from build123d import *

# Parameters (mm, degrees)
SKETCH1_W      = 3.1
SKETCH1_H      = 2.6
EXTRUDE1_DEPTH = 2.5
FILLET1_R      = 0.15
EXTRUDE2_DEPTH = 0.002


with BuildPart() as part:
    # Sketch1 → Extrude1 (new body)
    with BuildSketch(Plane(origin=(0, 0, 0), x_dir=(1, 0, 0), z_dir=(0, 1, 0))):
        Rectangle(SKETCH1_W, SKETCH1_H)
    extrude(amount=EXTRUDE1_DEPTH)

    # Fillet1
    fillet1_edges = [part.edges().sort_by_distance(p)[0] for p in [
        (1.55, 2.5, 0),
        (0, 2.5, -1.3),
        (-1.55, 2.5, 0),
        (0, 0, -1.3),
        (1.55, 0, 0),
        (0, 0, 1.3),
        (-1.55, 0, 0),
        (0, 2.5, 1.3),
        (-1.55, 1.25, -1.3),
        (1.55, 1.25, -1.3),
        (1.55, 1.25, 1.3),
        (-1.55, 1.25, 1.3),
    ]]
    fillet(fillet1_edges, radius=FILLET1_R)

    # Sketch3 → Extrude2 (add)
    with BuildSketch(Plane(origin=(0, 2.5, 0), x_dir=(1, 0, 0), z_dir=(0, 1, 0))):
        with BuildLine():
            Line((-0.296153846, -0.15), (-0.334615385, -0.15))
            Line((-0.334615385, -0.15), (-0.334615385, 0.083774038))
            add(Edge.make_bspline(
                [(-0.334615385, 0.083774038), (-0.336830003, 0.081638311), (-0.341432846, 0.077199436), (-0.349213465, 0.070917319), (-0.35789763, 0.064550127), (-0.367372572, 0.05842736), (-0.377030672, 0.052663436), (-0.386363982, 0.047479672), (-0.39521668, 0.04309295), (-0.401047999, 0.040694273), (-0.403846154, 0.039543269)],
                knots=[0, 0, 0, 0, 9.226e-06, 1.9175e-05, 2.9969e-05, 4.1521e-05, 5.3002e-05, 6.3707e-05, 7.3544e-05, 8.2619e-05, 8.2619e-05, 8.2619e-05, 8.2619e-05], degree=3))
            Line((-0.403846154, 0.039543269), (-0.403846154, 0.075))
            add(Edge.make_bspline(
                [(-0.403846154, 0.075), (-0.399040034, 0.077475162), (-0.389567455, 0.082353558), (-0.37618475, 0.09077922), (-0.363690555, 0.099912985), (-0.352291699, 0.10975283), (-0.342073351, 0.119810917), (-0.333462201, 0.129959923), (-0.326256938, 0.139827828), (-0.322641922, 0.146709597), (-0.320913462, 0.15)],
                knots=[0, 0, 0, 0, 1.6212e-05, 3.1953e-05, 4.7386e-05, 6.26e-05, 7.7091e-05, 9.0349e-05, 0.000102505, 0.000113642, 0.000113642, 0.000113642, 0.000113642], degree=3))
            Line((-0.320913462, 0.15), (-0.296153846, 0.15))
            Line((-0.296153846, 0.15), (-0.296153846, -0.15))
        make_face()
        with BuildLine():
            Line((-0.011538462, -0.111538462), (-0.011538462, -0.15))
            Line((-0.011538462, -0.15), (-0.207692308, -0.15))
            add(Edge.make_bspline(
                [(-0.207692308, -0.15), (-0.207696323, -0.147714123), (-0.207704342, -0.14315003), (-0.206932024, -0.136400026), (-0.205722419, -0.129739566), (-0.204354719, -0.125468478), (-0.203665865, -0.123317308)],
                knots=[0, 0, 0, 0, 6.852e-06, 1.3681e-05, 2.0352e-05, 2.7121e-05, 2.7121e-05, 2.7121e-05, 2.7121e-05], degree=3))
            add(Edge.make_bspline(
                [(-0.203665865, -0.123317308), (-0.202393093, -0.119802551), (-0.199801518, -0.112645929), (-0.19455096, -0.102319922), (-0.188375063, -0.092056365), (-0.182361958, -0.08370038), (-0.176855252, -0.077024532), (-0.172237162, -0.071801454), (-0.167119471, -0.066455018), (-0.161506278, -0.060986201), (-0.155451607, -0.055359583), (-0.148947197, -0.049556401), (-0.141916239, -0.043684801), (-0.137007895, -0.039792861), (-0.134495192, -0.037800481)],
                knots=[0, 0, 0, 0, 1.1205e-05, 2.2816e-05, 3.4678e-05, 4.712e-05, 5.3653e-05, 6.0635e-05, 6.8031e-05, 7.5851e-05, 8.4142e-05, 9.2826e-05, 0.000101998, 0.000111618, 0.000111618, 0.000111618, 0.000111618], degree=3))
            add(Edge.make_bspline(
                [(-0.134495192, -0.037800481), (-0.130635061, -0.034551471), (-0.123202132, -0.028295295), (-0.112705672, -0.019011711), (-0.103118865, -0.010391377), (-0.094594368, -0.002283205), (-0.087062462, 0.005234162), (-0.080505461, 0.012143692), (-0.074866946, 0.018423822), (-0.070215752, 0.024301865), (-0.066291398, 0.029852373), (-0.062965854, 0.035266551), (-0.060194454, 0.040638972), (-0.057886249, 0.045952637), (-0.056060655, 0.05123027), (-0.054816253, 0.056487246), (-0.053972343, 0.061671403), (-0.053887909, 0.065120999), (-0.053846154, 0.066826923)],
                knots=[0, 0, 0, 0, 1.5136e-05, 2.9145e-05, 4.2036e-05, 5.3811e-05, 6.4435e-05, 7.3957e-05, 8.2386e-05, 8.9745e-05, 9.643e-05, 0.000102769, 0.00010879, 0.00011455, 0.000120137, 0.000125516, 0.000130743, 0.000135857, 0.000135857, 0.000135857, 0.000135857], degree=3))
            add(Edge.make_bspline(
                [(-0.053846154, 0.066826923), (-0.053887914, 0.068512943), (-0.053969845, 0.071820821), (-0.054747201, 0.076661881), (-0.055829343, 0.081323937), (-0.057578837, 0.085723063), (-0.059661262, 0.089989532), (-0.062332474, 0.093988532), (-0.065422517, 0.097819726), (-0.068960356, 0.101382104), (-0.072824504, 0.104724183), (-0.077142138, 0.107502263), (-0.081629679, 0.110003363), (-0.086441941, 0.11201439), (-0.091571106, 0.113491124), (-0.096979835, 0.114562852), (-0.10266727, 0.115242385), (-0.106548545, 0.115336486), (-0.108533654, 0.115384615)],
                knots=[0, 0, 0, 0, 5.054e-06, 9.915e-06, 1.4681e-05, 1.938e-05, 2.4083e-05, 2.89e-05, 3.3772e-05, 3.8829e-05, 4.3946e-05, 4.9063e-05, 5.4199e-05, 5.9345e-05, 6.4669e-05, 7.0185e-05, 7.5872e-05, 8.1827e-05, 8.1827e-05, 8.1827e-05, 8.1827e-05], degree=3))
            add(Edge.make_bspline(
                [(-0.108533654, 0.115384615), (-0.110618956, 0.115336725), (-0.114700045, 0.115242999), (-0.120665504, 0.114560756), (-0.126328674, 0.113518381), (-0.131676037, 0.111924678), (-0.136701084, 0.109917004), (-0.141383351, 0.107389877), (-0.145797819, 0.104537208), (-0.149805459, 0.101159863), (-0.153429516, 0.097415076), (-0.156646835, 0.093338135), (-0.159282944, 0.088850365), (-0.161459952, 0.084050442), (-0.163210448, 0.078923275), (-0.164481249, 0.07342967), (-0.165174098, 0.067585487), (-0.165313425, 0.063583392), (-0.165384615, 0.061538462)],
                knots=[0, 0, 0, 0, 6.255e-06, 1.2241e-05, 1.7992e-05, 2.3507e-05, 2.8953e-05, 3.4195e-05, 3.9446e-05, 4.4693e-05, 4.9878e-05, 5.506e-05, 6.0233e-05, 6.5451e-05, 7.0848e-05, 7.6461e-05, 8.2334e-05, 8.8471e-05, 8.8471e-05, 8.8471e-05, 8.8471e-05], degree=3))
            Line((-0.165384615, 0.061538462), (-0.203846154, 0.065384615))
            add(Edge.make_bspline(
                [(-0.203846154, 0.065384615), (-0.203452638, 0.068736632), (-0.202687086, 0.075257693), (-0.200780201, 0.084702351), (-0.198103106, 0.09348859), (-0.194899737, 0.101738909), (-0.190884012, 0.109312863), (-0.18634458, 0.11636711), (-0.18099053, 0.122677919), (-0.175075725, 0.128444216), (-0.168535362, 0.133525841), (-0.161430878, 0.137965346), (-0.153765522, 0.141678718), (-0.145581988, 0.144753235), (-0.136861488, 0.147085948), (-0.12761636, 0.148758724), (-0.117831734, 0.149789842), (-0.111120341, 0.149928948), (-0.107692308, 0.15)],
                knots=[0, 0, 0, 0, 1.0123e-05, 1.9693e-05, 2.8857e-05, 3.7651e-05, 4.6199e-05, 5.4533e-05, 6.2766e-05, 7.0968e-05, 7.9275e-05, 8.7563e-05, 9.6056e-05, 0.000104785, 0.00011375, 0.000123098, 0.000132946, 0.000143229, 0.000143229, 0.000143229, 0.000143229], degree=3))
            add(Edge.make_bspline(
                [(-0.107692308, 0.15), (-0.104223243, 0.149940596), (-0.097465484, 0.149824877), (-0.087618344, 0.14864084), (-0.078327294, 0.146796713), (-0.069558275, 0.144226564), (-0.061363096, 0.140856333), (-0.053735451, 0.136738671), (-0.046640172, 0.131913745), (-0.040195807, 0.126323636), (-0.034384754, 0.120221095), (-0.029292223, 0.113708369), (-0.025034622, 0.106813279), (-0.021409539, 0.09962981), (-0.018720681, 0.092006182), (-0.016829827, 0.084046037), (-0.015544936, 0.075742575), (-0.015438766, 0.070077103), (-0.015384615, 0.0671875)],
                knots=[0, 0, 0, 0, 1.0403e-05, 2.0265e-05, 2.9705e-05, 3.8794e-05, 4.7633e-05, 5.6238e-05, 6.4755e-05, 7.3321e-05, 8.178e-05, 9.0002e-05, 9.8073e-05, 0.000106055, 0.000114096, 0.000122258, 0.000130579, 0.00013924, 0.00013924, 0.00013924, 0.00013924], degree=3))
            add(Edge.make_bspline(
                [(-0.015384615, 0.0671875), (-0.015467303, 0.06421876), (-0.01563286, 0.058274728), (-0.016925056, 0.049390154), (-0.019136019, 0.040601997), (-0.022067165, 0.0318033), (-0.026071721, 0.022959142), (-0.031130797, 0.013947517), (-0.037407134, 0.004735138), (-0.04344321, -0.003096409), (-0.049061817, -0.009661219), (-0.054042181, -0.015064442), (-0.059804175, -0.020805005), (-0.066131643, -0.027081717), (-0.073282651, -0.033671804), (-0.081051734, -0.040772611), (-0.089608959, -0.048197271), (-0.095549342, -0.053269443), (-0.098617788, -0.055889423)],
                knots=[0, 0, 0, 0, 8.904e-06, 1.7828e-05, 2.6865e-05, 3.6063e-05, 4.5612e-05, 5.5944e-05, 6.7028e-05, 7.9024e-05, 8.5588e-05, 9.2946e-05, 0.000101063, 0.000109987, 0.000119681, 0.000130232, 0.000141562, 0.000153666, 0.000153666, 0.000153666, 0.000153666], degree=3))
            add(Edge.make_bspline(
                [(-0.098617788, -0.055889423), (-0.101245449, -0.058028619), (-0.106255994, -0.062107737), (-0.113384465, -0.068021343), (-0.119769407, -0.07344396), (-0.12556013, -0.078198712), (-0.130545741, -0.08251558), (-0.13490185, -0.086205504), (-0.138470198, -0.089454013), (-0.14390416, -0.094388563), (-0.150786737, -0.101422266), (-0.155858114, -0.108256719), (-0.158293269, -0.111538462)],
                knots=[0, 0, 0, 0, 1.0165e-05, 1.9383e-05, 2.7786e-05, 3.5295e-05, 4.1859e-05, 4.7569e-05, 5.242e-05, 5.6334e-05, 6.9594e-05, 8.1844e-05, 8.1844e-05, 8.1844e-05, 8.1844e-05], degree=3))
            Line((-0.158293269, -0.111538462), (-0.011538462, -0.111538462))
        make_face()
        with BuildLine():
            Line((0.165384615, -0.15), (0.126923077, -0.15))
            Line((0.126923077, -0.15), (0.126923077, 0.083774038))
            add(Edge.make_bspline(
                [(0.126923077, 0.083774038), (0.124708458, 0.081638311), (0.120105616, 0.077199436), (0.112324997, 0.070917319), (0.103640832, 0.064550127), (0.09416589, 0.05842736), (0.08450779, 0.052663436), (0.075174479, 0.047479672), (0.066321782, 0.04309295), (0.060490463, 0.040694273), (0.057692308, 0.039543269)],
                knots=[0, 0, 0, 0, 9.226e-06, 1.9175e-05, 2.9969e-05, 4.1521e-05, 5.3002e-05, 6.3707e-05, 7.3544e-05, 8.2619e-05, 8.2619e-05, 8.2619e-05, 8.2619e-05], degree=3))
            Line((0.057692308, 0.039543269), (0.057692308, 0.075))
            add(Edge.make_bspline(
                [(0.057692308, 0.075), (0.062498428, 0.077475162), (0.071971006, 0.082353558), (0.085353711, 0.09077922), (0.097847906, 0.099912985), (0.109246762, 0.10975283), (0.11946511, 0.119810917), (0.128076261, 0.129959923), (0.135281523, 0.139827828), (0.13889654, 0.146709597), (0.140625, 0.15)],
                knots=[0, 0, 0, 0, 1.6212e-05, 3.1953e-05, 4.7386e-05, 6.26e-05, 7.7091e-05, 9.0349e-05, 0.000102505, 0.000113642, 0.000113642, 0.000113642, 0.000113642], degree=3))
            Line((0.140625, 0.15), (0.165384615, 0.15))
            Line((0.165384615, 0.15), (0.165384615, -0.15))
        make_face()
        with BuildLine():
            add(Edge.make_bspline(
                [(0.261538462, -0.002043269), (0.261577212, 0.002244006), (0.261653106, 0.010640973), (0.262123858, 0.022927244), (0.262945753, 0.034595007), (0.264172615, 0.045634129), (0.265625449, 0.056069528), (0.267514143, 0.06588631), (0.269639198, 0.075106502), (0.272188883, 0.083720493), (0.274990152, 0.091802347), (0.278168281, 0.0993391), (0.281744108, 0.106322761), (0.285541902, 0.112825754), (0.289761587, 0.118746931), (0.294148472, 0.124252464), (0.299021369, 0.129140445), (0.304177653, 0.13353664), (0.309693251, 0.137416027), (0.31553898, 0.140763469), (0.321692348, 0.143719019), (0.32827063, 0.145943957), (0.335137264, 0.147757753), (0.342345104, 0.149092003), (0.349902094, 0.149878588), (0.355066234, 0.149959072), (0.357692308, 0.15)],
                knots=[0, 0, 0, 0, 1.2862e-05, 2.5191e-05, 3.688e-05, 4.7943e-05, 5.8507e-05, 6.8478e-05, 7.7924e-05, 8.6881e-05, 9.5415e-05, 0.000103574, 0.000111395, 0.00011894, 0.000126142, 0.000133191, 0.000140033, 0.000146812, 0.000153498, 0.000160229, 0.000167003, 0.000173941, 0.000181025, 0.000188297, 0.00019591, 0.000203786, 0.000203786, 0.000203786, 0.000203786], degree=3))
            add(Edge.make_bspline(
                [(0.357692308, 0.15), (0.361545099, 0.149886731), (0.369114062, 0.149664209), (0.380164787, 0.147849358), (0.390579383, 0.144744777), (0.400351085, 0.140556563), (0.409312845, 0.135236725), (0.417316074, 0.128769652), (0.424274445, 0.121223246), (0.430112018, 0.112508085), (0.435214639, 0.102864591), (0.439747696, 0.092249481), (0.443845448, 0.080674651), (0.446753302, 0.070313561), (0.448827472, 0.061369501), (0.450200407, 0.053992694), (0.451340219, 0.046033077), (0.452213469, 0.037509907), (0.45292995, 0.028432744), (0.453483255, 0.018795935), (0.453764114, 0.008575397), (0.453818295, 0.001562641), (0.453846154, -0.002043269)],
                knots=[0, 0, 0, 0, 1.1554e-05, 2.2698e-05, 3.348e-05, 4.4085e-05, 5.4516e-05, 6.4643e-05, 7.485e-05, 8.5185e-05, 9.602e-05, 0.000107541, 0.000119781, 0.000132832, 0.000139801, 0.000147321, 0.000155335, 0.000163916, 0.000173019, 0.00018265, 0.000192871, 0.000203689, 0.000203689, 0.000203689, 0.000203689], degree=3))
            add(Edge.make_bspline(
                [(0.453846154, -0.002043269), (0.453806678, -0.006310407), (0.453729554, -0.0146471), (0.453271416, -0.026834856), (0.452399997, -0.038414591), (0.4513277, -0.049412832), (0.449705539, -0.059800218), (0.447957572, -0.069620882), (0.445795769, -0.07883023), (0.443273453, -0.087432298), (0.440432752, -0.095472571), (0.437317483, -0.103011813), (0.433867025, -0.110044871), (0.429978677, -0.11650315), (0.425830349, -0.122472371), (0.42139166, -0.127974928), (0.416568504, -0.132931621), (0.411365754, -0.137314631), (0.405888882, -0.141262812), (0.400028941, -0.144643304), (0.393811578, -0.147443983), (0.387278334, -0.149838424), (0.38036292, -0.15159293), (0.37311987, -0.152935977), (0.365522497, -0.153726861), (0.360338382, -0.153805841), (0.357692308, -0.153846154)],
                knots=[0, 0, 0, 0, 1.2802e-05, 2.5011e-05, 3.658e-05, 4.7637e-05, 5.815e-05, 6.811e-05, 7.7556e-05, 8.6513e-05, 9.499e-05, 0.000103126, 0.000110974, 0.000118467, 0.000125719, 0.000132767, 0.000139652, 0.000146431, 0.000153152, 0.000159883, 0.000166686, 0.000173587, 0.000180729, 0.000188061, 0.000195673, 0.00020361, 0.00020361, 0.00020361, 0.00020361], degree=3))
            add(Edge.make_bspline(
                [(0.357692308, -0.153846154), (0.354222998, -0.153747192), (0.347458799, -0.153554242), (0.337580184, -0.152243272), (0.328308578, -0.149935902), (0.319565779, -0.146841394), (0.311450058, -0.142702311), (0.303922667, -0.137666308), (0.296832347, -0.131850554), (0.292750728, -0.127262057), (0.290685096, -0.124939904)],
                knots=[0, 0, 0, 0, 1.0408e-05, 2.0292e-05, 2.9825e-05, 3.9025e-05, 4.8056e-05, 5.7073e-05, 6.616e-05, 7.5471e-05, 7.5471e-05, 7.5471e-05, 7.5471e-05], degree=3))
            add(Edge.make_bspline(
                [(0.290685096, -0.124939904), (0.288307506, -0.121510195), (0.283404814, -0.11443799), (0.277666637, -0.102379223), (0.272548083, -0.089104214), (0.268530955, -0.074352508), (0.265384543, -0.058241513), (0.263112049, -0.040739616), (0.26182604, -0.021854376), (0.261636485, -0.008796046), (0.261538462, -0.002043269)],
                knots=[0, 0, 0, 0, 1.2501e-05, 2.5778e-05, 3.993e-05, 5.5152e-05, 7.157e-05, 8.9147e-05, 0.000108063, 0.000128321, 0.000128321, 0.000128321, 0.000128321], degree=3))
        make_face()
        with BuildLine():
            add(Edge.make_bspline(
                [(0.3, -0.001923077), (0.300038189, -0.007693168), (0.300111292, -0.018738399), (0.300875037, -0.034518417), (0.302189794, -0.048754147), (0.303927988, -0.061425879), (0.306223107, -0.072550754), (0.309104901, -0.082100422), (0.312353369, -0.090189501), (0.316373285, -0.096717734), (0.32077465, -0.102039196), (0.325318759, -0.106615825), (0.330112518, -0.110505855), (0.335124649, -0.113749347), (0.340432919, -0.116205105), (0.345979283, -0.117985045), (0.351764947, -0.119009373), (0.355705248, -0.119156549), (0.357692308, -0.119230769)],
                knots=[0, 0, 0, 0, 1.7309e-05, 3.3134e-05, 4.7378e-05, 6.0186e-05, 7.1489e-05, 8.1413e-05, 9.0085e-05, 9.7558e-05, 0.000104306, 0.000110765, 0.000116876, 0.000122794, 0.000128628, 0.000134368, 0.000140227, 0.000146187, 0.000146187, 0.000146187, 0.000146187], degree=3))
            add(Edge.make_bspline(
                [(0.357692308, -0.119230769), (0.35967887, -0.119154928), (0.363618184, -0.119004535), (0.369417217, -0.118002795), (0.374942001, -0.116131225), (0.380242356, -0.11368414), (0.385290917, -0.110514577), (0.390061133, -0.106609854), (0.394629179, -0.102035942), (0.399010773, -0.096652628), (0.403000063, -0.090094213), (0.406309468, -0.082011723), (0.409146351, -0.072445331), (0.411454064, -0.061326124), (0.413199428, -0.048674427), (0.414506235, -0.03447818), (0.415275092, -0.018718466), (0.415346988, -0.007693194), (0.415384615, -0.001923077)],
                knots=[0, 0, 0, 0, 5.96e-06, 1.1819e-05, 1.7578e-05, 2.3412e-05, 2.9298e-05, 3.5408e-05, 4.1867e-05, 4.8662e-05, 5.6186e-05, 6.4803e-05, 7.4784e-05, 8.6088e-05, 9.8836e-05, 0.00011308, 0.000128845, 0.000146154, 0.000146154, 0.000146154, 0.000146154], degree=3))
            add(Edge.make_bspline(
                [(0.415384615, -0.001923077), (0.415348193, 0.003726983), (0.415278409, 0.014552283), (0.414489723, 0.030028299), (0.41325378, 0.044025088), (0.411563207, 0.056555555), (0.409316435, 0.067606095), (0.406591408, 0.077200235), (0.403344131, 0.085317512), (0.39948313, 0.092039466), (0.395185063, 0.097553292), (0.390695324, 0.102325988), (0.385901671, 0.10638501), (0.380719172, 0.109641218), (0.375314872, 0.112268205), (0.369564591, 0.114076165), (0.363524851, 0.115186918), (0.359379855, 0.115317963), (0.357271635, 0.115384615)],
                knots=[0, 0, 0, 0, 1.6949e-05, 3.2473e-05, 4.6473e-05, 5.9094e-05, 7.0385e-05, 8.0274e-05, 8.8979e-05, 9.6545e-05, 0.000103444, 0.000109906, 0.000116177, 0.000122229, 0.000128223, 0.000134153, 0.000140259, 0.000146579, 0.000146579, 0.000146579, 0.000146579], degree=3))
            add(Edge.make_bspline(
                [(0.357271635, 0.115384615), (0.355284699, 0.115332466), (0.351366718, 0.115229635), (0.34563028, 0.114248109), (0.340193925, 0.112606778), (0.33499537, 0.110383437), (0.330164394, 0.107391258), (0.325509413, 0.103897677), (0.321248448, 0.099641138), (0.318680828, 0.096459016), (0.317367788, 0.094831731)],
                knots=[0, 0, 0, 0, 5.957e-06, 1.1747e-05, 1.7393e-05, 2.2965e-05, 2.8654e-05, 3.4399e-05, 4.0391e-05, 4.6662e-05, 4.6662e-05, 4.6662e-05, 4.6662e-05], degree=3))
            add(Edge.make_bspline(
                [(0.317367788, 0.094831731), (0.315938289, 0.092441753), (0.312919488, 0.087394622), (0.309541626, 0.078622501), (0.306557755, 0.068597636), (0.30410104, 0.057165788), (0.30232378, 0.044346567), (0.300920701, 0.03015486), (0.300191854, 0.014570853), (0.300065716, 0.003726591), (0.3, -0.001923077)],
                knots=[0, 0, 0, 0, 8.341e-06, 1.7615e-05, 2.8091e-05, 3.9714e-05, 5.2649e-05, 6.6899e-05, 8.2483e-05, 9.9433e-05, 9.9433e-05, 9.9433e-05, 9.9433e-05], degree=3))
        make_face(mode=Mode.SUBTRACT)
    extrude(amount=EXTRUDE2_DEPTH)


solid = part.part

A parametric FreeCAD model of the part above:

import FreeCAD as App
import Part
import Sketcher

V = App.Vector
Q = App.Units.Quantity

doc = App.newDocument("Part")
body = doc.addObject("PartDesign::Body", "Body")

# Sketch on XZ plane
sketch1 = body.newObject("Sketcher::SketchObject", "Sketch")
sketch1.AttachmentSupport = (doc.getObject("XZ_Plane"), [""])
sketch1.MapMode = "FlatFace"
sketch1.addGeometry(Part.LineSegment(V(-1.6, -1.3, 0), V(-1.6, 1.3, 0)), False)
sketch1.addGeometry(Part.LineSegment(V(-1.6, 1.3, 0), V(1.6, 1.3, 0)), False)
sketch1.addGeometry(Part.LineSegment(V(1.6, 1.3, 0), V(1.6, -1.3, 0)), False)
sketch1.addGeometry(Part.LineSegment(V(1.6, -1.3, 0), V(-1.6, -1.3, 0)), False)
sketch1.addConstraint(Sketcher.Constraint("Coincident", 0, 2, 1, 1))
sketch1.addConstraint(Sketcher.Constraint("Coincident", 1, 2, 2, 1))
sketch1.addConstraint(Sketcher.Constraint("Coincident", 2, 2, 3, 1))
sketch1.addConstraint(Sketcher.Constraint("Coincident", 3, 2, 0, 1))
sketch1.addConstraint(Sketcher.Constraint("Vertical", 0))
sketch1.addConstraint(Sketcher.Constraint("Horizontal", 1))
sketch1.addConstraint(Sketcher.Constraint("Vertical", 2))
sketch1.addConstraint(Sketcher.Constraint("Horizontal", 3))
sketch1.addConstraint(Sketcher.Constraint("Symmetric", 0, 2, 2, 2, -1, 1))
sketch1.addConstraint(Sketcher.Constraint("DistanceX", 1, 1, 1, 2, Q("3.1 mm")))
sketch1.addConstraint(Sketcher.Constraint("DistanceY", 0, 1, 0, 2, Q("2.6 mm")))
pad1 = body.newObject("PartDesign::Pad", "Pad")
pad1.Profile = sketch1
pad1.Length = 2.5
pad1.Reversed = True
doc.recompute()

fillet = body.newObject("PartDesign::Fillet", "Fillet")
fillet.Base = (pad1, ["Edge1"])
fillet.UseAllEdges = True
fillet.Radius = 0.15

# Sketch on XZ plane
sketch2 = body.newObject("Sketcher::SketchObject", "Sketch001")
sketch2.AttachmentSupport = (doc.getObject("XZ_Plane"), [""])
sketch2.MapMode = "FlatFace"
sketch2.AttachmentOffset = App.Placement(V(0, 0, -2.5), App.Rotation())
sketch2.addGeometry(Part.LineSegment(V(-0.334615, 0.15, 0), V(-0.296154, 0.15, 0)), False)
sketch2.addGeometry(Part.LineSegment(V(-0.296154, 0.15, 0), V(-0.296154, -0.15, 0)), False)
sketch2.addGeometry(Part.LineSegment(V(-0.296154, -0.15, 0), V(-0.320913, -0.15, 0)), False)
sketch2.addGeometry(Part.BSplineCurve([V(-0.403846, -0.075, 0), V(-0.39904, -0.077475, 0), V(-0.389567, -0.082354, 0), V(-0.376185, -0.090779, 0), V(-0.363691, -0.099913, 0), V(-0.352292, -0.109753, 0), V(-0.342073, -0.119811, 0), V(-0.333462, -0.12996, 0), V(-0.326257, -0.139828, 0), V(-0.322642, -0.14671, 0), V(-0.320913, -0.15, 0)], [4, 1, 1, 1, 1, 1, 1, 1, 4], [0, 0.000016212, 0.000031953, 0.000047386, 0.0000626, 0.000077091, 0.000090349, 0.000102505, 0.000113642], False, 3, [1, 1, 1, 1, 1, 1, 1, 1, 1, 1, 1], False), False)
sketch2.addGeometry(Part.LineSegment(V(-0.403846, -0.075, 0), V(-0.403846, -0.039543, 0)), False)
sketch2.addGeometry(Part.BSplineCurve([V(-0.334615, -0.083774, 0), V(-0.33683, -0.081638, 0), V(-0.341433, -0.077199, 0), V(-0.349213, -0.070917, 0), V(-0.357898, -0.06455, 0), V(-0.367373, -0.058427, 0), V(-0.377031, -0.052663, 0), V(-0.386364, -0.04748, 0), V(-0.395217, -0.043093, 0), V(-0.401048, -0.040694, 0), V(-0.403846, -0.039543, 0)], [4, 1, 1, 1, 1, 1, 1, 1, 4], [0, 0.000009226, 0.000019175, 0.000029969, 0.000041521, 0.000053002, 0.000063707, 0.000073544, 0.000082619], False, 3, [1, 1, 1, 1, 1, 1, 1, 1, 1, 1, 1], False), False)
sketch2.addGeometry(Part.LineSegment(V(-0.334615, -0.083774, 0), V(-0.334615, 0.15, 0)), False)
sketch2.addGeometry(Part.LineSegment(V(-0.011538, 0.15, 0), V(-0.011538, 0.111538, 0)), False)
sketch2.addGeometry(Part.LineSegment(V(-0.011538, 0.111538, 0), V(-0.158293, 0.111538, 0)), False)
sketch2.addGeometry(Part.BSplineCurve([V(-0.098618, 0.055889, 0), V(-0.101245, 0.058029, 0), V(-0.106256, 0.062108, 0), V(-0.113384, 0.068021, 0), V(-0.119769, 0.073444, 0), V(-0.12556, 0.078199, 0), V(-0.130546, 0.082516, 0), V(-0.134902, 0.086206, 0), V(-0.13847, 0.089454, 0), V(-0.143904, 0.094389, 0), V(-0.150787, 0.101422, 0), V(-0.155858, 0.108257, 0), V(-0.158293, 0.111538, 0)], [4, 1, 1, 1, 1, 1, 1, 1, 1, 1, 4], [0, 0.000010165, 0.000019383, 0.000027786, 0.000035295, 0.000041859, 0.000047569, 0.00005242, 0.000056334, 0.000069594, 0.000081844], False, 3, [1, 1, 1, 1, 1, 1, 1, 1, 1, 1, 1, 1, 1], False), False)
sketch2.addGeometry(Part.BSplineCurve([V(-0.015385, -0.067187, 0), V(-0.015467, -0.064219, 0), V(-0.015633, -0.058275, 0), V(-0.016925, -0.04939, 0), V(-0.019136, -0.040602, 0), V(-0.022067, -0.031803, 0), V(-0.026072, -0.022959, 0), V(-0.031131, -0.013948, 0), V(-0.037407, -0.004735, 0), V(-0.043443, 0.003096, 0), V(-0.049062, 0.009661, 0), V(-0.054042, 0.015064, 0), V(-0.059804, 0.020805, 0), V(-0.066132, 0.027082, 0), V(-0.073283, 0.033672, 0), V(-0.081052, 0.040773, 0), V(-0.089609, 0.048197, 0), V(-0.095549, 0.053269, 0), V(-0.098618, 0.055889, 0)], [4, 1, 1, 1, 1, 1, 1, 1, 1, 1, 1, 1, 1, 1, 1, 1, 4], [0, 0.000008904, 0.000017828, 0.000026865, 0.000036063, 0.000045612, 0.000055944, 0.000067028, 0.000079024, 0.000085588, 0.000092946, 0.000101063, 0.000109987, 0.000119681, 0.000130232, 0.000141562, 0.000153666], False, 3, [1, 1, 1, 1, 1, 1, 1, 1, 1, 1, 1, 1, 1, 1, 1, 1, 1, 1, 1], False), False)
sketch2.addGeometry(Part.BSplineCurve([V(-0.107692, -0.15, 0), V(-0.104223, -0.149941, 0), V(-0.097465, -0.149825, 0), V(-0.087618, -0.148641, 0), V(-0.078327, -0.146797, 0), V(-0.069558, -0.144227, 0), V(-0.061363, -0.140856, 0), V(-0.053735, -0.136739, 0), V(-0.04664, -0.131914, 0), V(-0.040196, -0.126324, 0), V(-0.034385, -0.120221, 0), V(-0.029292, -0.113708, 0), V(-0.025035, -0.106813, 0), V(-0.02141, -0.09963, 0), V(-0.018721, -0.092006, 0), V(-0.01683, -0.084046, 0), V(-0.015545, -0.075743, 0), V(-0.015439, -0.070077, 0), V(-0.015385, -0.067187, 0)], [4, 1, 1, 1, 1, 1, 1, 1, 1, 1, 1, 1, 1, 1, 1, 1, 4], [0, 0.000010403, 0.000020265, 0.000029705, 0.000038794, 0.000047633, 0.000056238, 0.000064755, 0.000073321, 0.00008178, 0.000090002, 0.000098073, 0.000106055, 0.000114096, 0.000122258, 0.000130579, 0.00013924], False, 3, [1, 1, 1, 1, 1, 1, 1, 1, 1, 1, 1, 1, 1, 1, 1, 1, 1, 1, 1], False), False)
sketch2.addGeometry(Part.BSplineCurve([V(-0.203846, -0.065385, 0), V(-0.203453, -0.068737, 0), V(-0.202687, -0.075258, 0), V(-0.20078, -0.084702, 0), V(-0.198103, -0.093489, 0), V(-0.1949, -0.101739, 0), V(-0.190884, -0.109313, 0), V(-0.186345, -0.116367, 0), V(-0.180991, -0.122678, 0), V(-0.175076, -0.128444, 0), V(-0.168535, -0.133526, 0), V(-0.161431, -0.137965, 0), V(-0.153766, -0.141679, 0), V(-0.145582, -0.144753, 0), V(-0.136861, -0.147086, 0), V(-0.127616, -0.148759, 0), V(-0.117832, -0.14979, 0), V(-0.11112, -0.149929, 0), V(-0.107692, -0.15, 0)], [4, 1, 1, 1, 1, 1, 1, 1, 1, 1, 1, 1, 1, 1, 1, 1, 4], [0, 0.000010123, 0.000019693, 0.000028857, 0.000037651, 0.000046199, 0.000054533, 0.000062766, 0.000070968, 0.000079275, 0.000087563, 0.000096056, 0.000104785, 0.00011375, 0.000123098, 0.000132946, 0.000143229], False, 3, [1, 1, 1, 1, 1, 1, 1, 1, 1, 1, 1, 1, 1, 1, 1, 1, 1, 1, 1], False), False)
sketch2.addGeometry(Part.LineSegment(V(-0.203846, -0.065385, 0), V(-0.165385, -0.061538, 0)), False)
sketch2.addGeometry(Part.BSplineCurve([V(-0.108534, -0.115385, 0), V(-0.110619, -0.115337, 0), V(-0.1147, -0.115243, 0), V(-0.120666, -0.114561, 0), V(-0.126329, -0.113518, 0), V(-0.131676, -0.111925, 0), V(-0.136701, -0.109917, 0), V(-0.141383, -0.10739, 0), V(-0.145798, -0.104537, 0), V(-0.149805, -0.10116, 0), V(-0.15343, -0.097415, 0), V(-0.156647, -0.093338, 0), V(-0.159283, -0.08885, 0), V(-0.16146, -0.08405, 0), V(-0.16321, -0.078923, 0), V(-0.164481, -0.07343, 0), V(-0.165174, -0.067585, 0), V(-0.165313, -0.063583, 0), V(-0.165385, -0.061538, 0)], [4, 1, 1, 1, 1, 1, 1, 1, 1, 1, 1, 1, 1, 1, 1, 1, 4], [0, 0.000006255, 0.000012241, 0.000017992, 0.000023507, 0.000028953, 0.000034195, 0.000039446, 0.000044693, 0.000049878, 0.00005506, 0.000060233, 0.000065451, 0.000070848, 0.000076461, 0.000082334, 0.000088471], False, 3, [1, 1, 1, 1, 1, 1, 1, 1, 1, 1, 1, 1, 1, 1, 1, 1, 1, 1, 1], False), False)
sketch2.addGeometry(Part.BSplineCurve([V(-0.053846, -0.066827, 0), V(-0.053888, -0.068513, 0), V(-0.05397, -0.071821, 0), V(-0.054747, -0.076662, 0), V(-0.055829, -0.081324, 0), V(-0.057579, -0.085723, 0), V(-0.059661, -0.08999, 0), V(-0.062332, -0.093989, 0), V(-0.065423, -0.09782, 0), V(-0.06896, -0.101382, 0), V(-0.072825, -0.104724, 0), V(-0.077142, -0.107502, 0), V(-0.08163, -0.110003, 0), V(-0.086442, -0.112014, 0), V(-0.091571, -0.113491, 0), V(-0.09698, -0.114563, 0), V(-0.102667, -0.115242, 0), V(-0.106549, -0.115336, 0), V(-0.108534, -0.115385, 0)], [4, 1, 1, 1, 1, 1, 1, 1, 1, 1, 1, 1, 1, 1, 1, 1, 4], [0, 0.000005054, 0.000009915, 0.000014681, 0.00001938, 0.000024083, 0.0000289, 0.000033772, 0.000038829, 0.000043946, 0.000049063, 0.000054199, 0.000059345, 0.000064669, 0.000070185, 0.000075872, 0.000081827], False, 3, [1, 1, 1, 1, 1, 1, 1, 1, 1, 1, 1, 1, 1, 1, 1, 1, 1, 1, 1], False), False)
sketch2.addGeometry(Part.BSplineCurve([V(-0.134495, 0.0378, 0), V(-0.130635, 0.034551, 0), V(-0.123202, 0.028295, 0), V(-0.112706, 0.019012, 0), V(-0.103119, 0.010391, 0), V(-0.094594, 0.002283, 0), V(-0.087062, -0.005234, 0), V(-0.080505, -0.012144, 0), V(-0.074867, -0.018424, 0), V(-0.070216, -0.024302, 0), V(-0.066291, -0.029852, 0), V(-0.062966, -0.035267, 0), V(-0.060194, -0.040639, 0), V(-0.057886, -0.045953, 0), V(-0.056061, -0.05123, 0), V(-0.054816, -0.056487, 0), V(-0.053972, -0.061671, 0), V(-0.053888, -0.065121, 0), V(-0.053846, -0.066827, 0)], [4, 1, 1, 1, 1, 1, 1, 1, 1, 1, 1, 1, 1, 1, 1, 1, 4], [0, 0.000015136, 0.000029145, 0.000042036, 0.000053811, 0.000064435, 0.000073957, 0.000082386, 0.000089745, 0.00009643, 0.000102769, 0.00010879, 0.00011455, 0.000120137, 0.000125516, 0.000130743, 0.000135857], False, 3, [1, 1, 1, 1, 1, 1, 1, 1, 1, 1, 1, 1, 1, 1, 1, 1, 1, 1, 1], False), False)
sketch2.addGeometry(Part.BSplineCurve([V(-0.203666, 0.123317, 0), V(-0.202393, 0.119803, 0), V(-0.199802, 0.112646, 0), V(-0.194551, 0.10232, 0), V(-0.188375, 0.092056, 0), V(-0.182362, 0.0837, 0), V(-0.176855, 0.077025, 0), V(-0.172237, 0.071801, 0), V(-0.167119, 0.066455, 0), V(-0.161506, 0.060986, 0), V(-0.155452, 0.05536, 0), V(-0.148947, 0.049556, 0), V(-0.141916, 0.043685, 0), V(-0.137008, 0.039793, 0), V(-0.134495, 0.0378, 0)], [4, 1, 1, 1, 1, 1, 1, 1, 1, 1, 1, 1, 4], [0, 0.000011205, 0.000022816, 0.000034678, 0.00004712, 0.000053653, 0.000060635, 0.000068031, 0.000075851, 0.000084142, 0.000092826, 0.000101998, 0.000111618], False, 3, [1, 1, 1, 1, 1, 1, 1, 1, 1, 1, 1, 1, 1, 1, 1], False), False)
sketch2.addGeometry(Part.BSplineCurve([V(-0.207692, 0.15, 0), V(-0.207696, 0.147714, 0), V(-0.207704, 0.14315, 0), V(-0.206932, 0.1364, 0), V(-0.205722, 0.12974, 0), V(-0.204355, 0.125468, 0), V(-0.203666, 0.123317, 0)], [4, 1, 1, 1, 4], [0, 0.000006852, 0.000013681, 0.000020352, 0.000027121], False, 3, [1, 1, 1, 1, 1, 1, 1], False), False)
sketch2.addGeometry(Part.LineSegment(V(-0.207692, 0.15, 0), V(-0.011538, 0.15, 0)), False)
sketch2.addGeometry(Part.LineSegment(V(0.126923, 0.15, 0), V(0.165385, 0.15, 0)), False)
sketch2.addGeometry(Part.LineSegment(V(0.165385, 0.15, 0), V(0.165385, -0.15, 0)), False)
sketch2.addGeometry(Part.LineSegment(V(0.165385, -0.15, 0), V(0.140625, -0.15, 0)), False)
sketch2.addGeometry(Part.BSplineCurve([V(0.057692, -0.075, 0), V(0.062498, -0.077475, 0), V(0.071971, -0.082354, 0), V(0.085354, -0.090779, 0), V(0.097848, -0.099913, 0), V(0.109247, -0.109753, 0), V(0.119465, -0.119811, 0), V(0.128076, -0.12996, 0), V(0.135282, -0.139828, 0), V(0.138897, -0.14671, 0), V(0.140625, -0.15, 0)], [4, 1, 1, 1, 1, 1, 1, 1, 4], [0, 0.000016212, 0.000031953, 0.000047386, 0.0000626, 0.000077091, 0.000090349, 0.000102505, 0.000113642], False, 3, [1, 1, 1, 1, 1, 1, 1, 1, 1, 1, 1], False), False)
sketch2.addGeometry(Part.LineSegment(V(0.057692, -0.075, 0), V(0.057692, -0.039543, 0)), False)
sketch2.addGeometry(Part.BSplineCurve([V(0.126923, -0.083774, 0), V(0.124708, -0.081638, 0), V(0.120106, -0.077199, 0), V(0.112325, -0.070917, 0), V(0.103641, -0.06455, 0), V(0.094166, -0.058427, 0), V(0.084508, -0.052663, 0), V(0.075174, -0.04748, 0), V(0.066322, -0.043093, 0), V(0.06049, -0.040694, 0), V(0.057692, -0.039543, 0)], [4, 1, 1, 1, 1, 1, 1, 1, 4], [0, 0.000009226, 0.000019175, 0.000029969, 0.000041521, 0.000053002, 0.000063707, 0.000073544, 0.000082619], False, 3, [1, 1, 1, 1, 1, 1, 1, 1, 1, 1, 1], False), False)
sketch2.addGeometry(Part.LineSegment(V(0.126923, -0.083774, 0), V(0.126923, 0.15, 0)), False)
sketch2.addGeometry(Part.BSplineCurve([V(0.261538, 0.002043, 0), V(0.261577, -0.002244, 0), V(0.261653, -0.010641, 0), V(0.262124, -0.022927, 0), V(0.262946, -0.034595, 0), V(0.264173, -0.045634, 0), V(0.265625, -0.05607, 0), V(0.267514, -0.065886, 0), V(0.269639, -0.075107, 0), V(0.272189, -0.08372, 0), V(0.27499, -0.091802, 0), V(0.278168, -0.099339, 0), V(0.281744, -0.106323, 0), V(0.285542, -0.112826, 0), V(0.289762, -0.118747, 0), V(0.294148, -0.124252, 0), V(0.299021, -0.12914, 0), V(0.304178, -0.133537, 0), V(0.309693, -0.137416, 0), V(0.315539, -0.140763, 0), V(0.321692, -0.143719, 0), V(0.328271, -0.145944, 0), V(0.335137, -0.147758, 0), V(0.342345, -0.149092, 0), V(0.349902, -0.149879, 0), V(0.355066, -0.149959, 0), V(0.357692, -0.15, 0)], [4, 1, 1, 1, 1, 1, 1, 1, 1, 1, 1, 1, 1, 1, 1, 1, 1, 1, 1, 1, 1, 1, 1, 1, 4], [0, 0.000012862, 0.000025191, 0.00003688, 0.000047943, 0.000058507, 0.000068478, 0.000077924, 0.000086881, 0.000095415, 0.000103574, 0.000111395, 0.00011894, 0.000126142, 0.000133191, 0.000140033, 0.000146812, 0.000153498, 0.000160229, 0.000167003, 0.000173941, 0.000181025, 0.000188297, 0.00019591, 0.000203786], False, 3, [1, 1, 1, 1, 1, 1, 1, 1, 1, 1, 1, 1, 1, 1, 1, 1, 1, 1, 1, 1, 1, 1, 1, 1, 1, 1, 1], False), False)
sketch2.addGeometry(Part.BSplineCurve([V(0.290685, 0.12494, 0), V(0.288308, 0.12151, 0), V(0.283405, 0.114438, 0), V(0.277667, 0.102379, 0), V(0.272548, 0.089104, 0), V(0.268531, 0.074353, 0), V(0.265385, 0.058242, 0), V(0.263112, 0.04074, 0), V(0.261826, 0.021854, 0), V(0.261636, 0.008796, 0), V(0.261538, 0.002043, 0)], [4, 1, 1, 1, 1, 1, 1, 1, 4], [0, 0.000012501, 0.000025778, 0.00003993, 0.000055152, 0.00007157, 0.000089147, 0.000108063, 0.000128321], False, 3, [1, 1, 1, 1, 1, 1, 1, 1, 1, 1, 1], False), False)
sketch2.addGeometry(Part.BSplineCurve([V(0.357692, 0.153846, 0), V(0.354223, 0.153747, 0), V(0.347459, 0.153554, 0), V(0.33758, 0.152243, 0), V(0.328309, 0.149936, 0), V(0.319566, 0.146841, 0), V(0.31145, 0.142702, 0), V(0.303923, 0.137666, 0), V(0.296832, 0.131851, 0), V(0.292751, 0.127262, 0), V(0.290685, 0.12494, 0)], [4, 1, 1, 1, 1, 1, 1, 1, 4], [0, 0.000010408, 0.000020292, 0.000029825, 0.000039025, 0.000048056, 0.000057073, 0.00006616, 0.000075471], False, 3, [1, 1, 1, 1, 1, 1, 1, 1, 1, 1, 1], False), False)
sketch2.addGeometry(Part.BSplineCurve([V(0.453846, 0.002043, 0), V(0.453807, 0.00631, 0), V(0.45373, 0.014647, 0), V(0.453271, 0.026835, 0), V(0.4524, 0.038415, 0), V(0.451328, 0.049413, 0), V(0.449706, 0.0598, 0), V(0.447958, 0.069621, 0), V(0.445796, 0.07883, 0), V(0.443273, 0.087432, 0), V(0.440433, 0.095473, 0), V(0.437317, 0.103012, 0), V(0.433867, 0.110045, 0), V(0.429979, 0.116503, 0), V(0.42583, 0.122472, 0), V(0.421392, 0.127975, 0), V(0.416569, 0.132932, 0), V(0.411366, 0.137315, 0), V(0.405889, 0.141263, 0), V(0.400029, 0.144643, 0), V(0.393812, 0.147444, 0), V(0.387278, 0.149838, 0), V(0.380363, 0.151593, 0), V(0.37312, 0.152936, 0), V(0.365522, 0.153727, 0), V(0.360338, 0.153806, 0), V(0.357692, 0.153846, 0)], [4, 1, 1, 1, 1, 1, 1, 1, 1, 1, 1, 1, 1, 1, 1, 1, 1, 1, 1, 1, 1, 1, 1, 1, 4], [0, 0.000012802, 0.000025011, 0.00003658, 0.000047637, 0.00005815, 0.00006811, 0.000077556, 0.000086513, 0.00009499, 0.000103126, 0.000110974, 0.000118467, 0.000125719, 0.000132767, 0.000139652, 0.000146431, 0.000153152, 0.000159883, 0.000166686, 0.000173587, 0.000180729, 0.000188061, 0.000195673, 0.00020361], False, 3, [1, 1, 1, 1, 1, 1, 1, 1, 1, 1, 1, 1, 1, 1, 1, 1, 1, 1, 1, 1, 1, 1, 1, 1, 1, 1, 1], False), False)
sketch2.addGeometry(Part.BSplineCurve([V(0.357692, -0.15, 0), V(0.361545, -0.149887, 0), V(0.369114, -0.149664, 0), V(0.380165, -0.147849, 0), V(0.390579, -0.144745, 0), V(0.400351, -0.140557, 0), V(0.409313, -0.135237, 0), V(0.417316, -0.12877, 0), V(0.424274, -0.121223, 0), V(0.430112, -0.112508, 0), V(0.435215, -0.102865, 0), V(0.439748, -0.092249, 0), V(0.443845, -0.080675, 0), V(0.446753, -0.070314, 0), V(0.448827, -0.06137, 0), V(0.4502, -0.053993, 0), V(0.45134, -0.046033, 0), V(0.452213, -0.03751, 0), V(0.45293, -0.028433, 0), V(0.453483, -0.018796, 0), V(0.453764, -0.008575, 0), V(0.453818, -0.001563, 0), V(0.453846, 0.002043, 0)], [4, 1, 1, 1, 1, 1, 1, 1, 1, 1, 1, 1, 1, 1, 1, 1, 1, 1, 1, 1, 4], [0, 0.000011554, 0.000022698, 0.00003348, 0.000044085, 0.000054516, 0.000064643, 0.00007485, 0.000085185, 0.00009602, 0.000107541, 0.000119781, 0.000132832, 0.000139801, 0.000147321, 0.000155335, 0.000163916, 0.000173019, 0.00018265, 0.000192871, 0.000203689], False, 3, [1, 1, 1, 1, 1, 1, 1, 1, 1, 1, 1, 1, 1, 1, 1, 1, 1, 1, 1, 1, 1, 1, 1], False), False)
sketch2.addGeometry(Part.BSplineCurve([V(0.317368, -0.094832, 0), V(0.315938, -0.092442, 0), V(0.312919, -0.087395, 0), V(0.309542, -0.078623, 0), V(0.306558, -0.068598, 0), V(0.304101, -0.057166, 0), V(0.302324, -0.044347, 0), V(0.300921, -0.030155, 0), V(0.300192, -0.014571, 0), V(0.300066, -0.003727, 0), V(0.3, 0.001923, 0)], [4, 1, 1, 1, 1, 1, 1, 1, 4], [0, 0.000008341, 0.000017615, 0.000028091, 0.000039714, 0.000052649, 0.000066899, 0.000082483, 0.000099433], False, 3, [1, 1, 1, 1, 1, 1, 1, 1, 1, 1, 1], False), False)
sketch2.addGeometry(Part.BSplineCurve([V(0.357272, -0.115385, 0), V(0.355285, -0.115332, 0), V(0.351367, -0.11523, 0), V(0.34563, -0.114248, 0), V(0.340194, -0.112607, 0), V(0.334995, -0.110383, 0), V(0.330164, -0.107391, 0), V(0.325509, -0.103898, 0), V(0.321248, -0.099641, 0), V(0.318681, -0.096459, 0), V(0.317368, -0.094832, 0)], [4, 1, 1, 1, 1, 1, 1, 1, 4], [0, 0.000005957, 0.000011747, 0.000017393, 0.000022965, 0.000028654, 0.000034399, 0.000040391, 0.000046662], False, 3, [1, 1, 1, 1, 1, 1, 1, 1, 1, 1, 1], False), False)
sketch2.addGeometry(Part.BSplineCurve([V(0.415385, 0.001923, 0), V(0.415348, -0.003727, 0), V(0.415278, -0.014552, 0), V(0.41449, -0.030028, 0), V(0.413254, -0.044025, 0), V(0.411563, -0.056556, 0), V(0.409316, -0.067606, 0), V(0.406591, -0.0772, 0), V(0.403344, -0.085318, 0), V(0.399483, -0.092039, 0), V(0.395185, -0.097553, 0), V(0.390695, -0.102326, 0), V(0.385902, -0.106385, 0), V(0.380719, -0.109641, 0), V(0.375315, -0.112268, 0), V(0.369565, -0.114076, 0), V(0.363525, -0.115187, 0), V(0.35938, -0.115318, 0), V(0.357272, -0.115385, 0)], [4, 1, 1, 1, 1, 1, 1, 1, 1, 1, 1, 1, 1, 1, 1, 1, 4], [0, 0.000016949, 0.000032473, 0.000046473, 0.000059094, 0.000070385, 0.000080274, 0.000088979, 0.000096545, 0.000103444, 0.000109906, 0.000116177, 0.000122229, 0.000128223, 0.000134153, 0.000140259, 0.000146579], False, 3, [1, 1, 1, 1, 1, 1, 1, 1, 1, 1, 1, 1, 1, 1, 1, 1, 1, 1, 1], False), False)
sketch2.addGeometry(Part.BSplineCurve([V(0.357692, 0.119231, 0), V(0.359679, 0.119155, 0), V(0.363618, 0.119005, 0), V(0.369417, 0.118003, 0), V(0.374942, 0.116131, 0), V(0.380242, 0.113684, 0), V(0.385291, 0.110515, 0), V(0.390061, 0.10661, 0), V(0.394629, 0.102036, 0), V(0.399011, 0.096653, 0), V(0.403, 0.090094, 0), V(0.406309, 0.082012, 0), V(0.409146, 0.072445, 0), V(0.411454, 0.061326, 0), V(0.413199, 0.048674, 0), V(0.414506, 0.034478, 0), V(0.415275, 0.018718, 0), V(0.415347, 0.007693, 0), V(0.415385, 0.001923, 0)], [4, 1, 1, 1, 1, 1, 1, 1, 1, 1, 1, 1, 1, 1, 1, 1, 4], [0, 0.00000596, 0.000011819, 0.000017578, 0.000023412, 0.000029298, 0.000035408, 0.000041867, 0.000048662, 0.000056186, 0.000064803, 0.000074784, 0.000086088, 0.000098836, 0.00011308, 0.000128845, 0.000146154], False, 3, [1, 1, 1, 1, 1, 1, 1, 1, 1, 1, 1, 1, 1, 1, 1, 1, 1, 1, 1], False), False)
sketch2.addGeometry(Part.BSplineCurve([V(0.3, 0.001923, 0), V(0.300038, 0.007693, 0), V(0.300111, 0.018738, 0), V(0.300875, 0.034518, 0), V(0.30219, 0.048754, 0), V(0.303928, 0.061426, 0), V(0.306223, 0.072551, 0), V(0.309105, 0.0821, 0), V(0.312353, 0.09019, 0), V(0.316373, 0.096718, 0), V(0.320775, 0.102039, 0), V(0.325319, 0.106616, 0), V(0.330113, 0.110506, 0), V(0.335125, 0.113749, 0), V(0.340433, 0.116205, 0), V(0.345979, 0.117985, 0), V(0.351765, 0.119009, 0), V(0.355705, 0.119157, 0), V(0.357692, 0.119231, 0)], [4, 1, 1, 1, 1, 1, 1, 1, 1, 1, 1, 1, 1, 1, 1, 1, 4], [0, 0.000017309, 0.000033134, 0.000047378, 0.000060186, 0.000071489, 0.000081413, 0.000090085, 0.000097558, 0.000104306, 0.000110765, 0.000116876, 0.000122794, 0.000128628, 0.000134368, 0.000140227, 0.000146187], False, 3, [1, 1, 1, 1, 1, 1, 1, 1, 1, 1, 1, 1, 1, 1, 1, 1, 1, 1, 1], False), False)
sketch2.addConstraint(Sketcher.Constraint("Block", 3))
sketch2.addConstraint(Sketcher.Constraint("Block", 5))
sketch2.addConstraint(Sketcher.Constraint("Block", 9))
sketch2.addConstraint(Sketcher.Constraint("Block", 10))
sketch2.addConstraint(Sketcher.Constraint("Block", 11))
sketch2.addConstraint(Sketcher.Constraint("Block", 12))
sketch2.addConstraint(Sketcher.Constraint("Block", 14))
sketch2.addConstraint(Sketcher.Constraint("Block", 15))
sketch2.addConstraint(Sketcher.Constraint("Block", 16))
sketch2.addConstraint(Sketcher.Constraint("Block", 17))
sketch2.addConstraint(Sketcher.Constraint("Block", 18))
sketch2.addConstraint(Sketcher.Constraint("Block", 23))
sketch2.addConstraint(Sketcher.Constraint("Block", 25))
sketch2.addConstraint(Sketcher.Constraint("Block", 27))
sketch2.addConstraint(Sketcher.Constraint("Block", 28))
sketch2.addConstraint(Sketcher.Constraint("Block", 29))
sketch2.addConstraint(Sketcher.Constraint("Block", 30))
sketch2.addConstraint(Sketcher.Constraint("Block", 31))
sketch2.addConstraint(Sketcher.Constraint("Block", 32))
sketch2.addConstraint(Sketcher.Constraint("Block", 33))
sketch2.addConstraint(Sketcher.Constraint("Block", 34))
sketch2.addConstraint(Sketcher.Constraint("Block", 35))
sketch2.addConstraint(Sketcher.Constraint("Block", 36))
sketch2.addConstraint(Sketcher.Constraint("Coincident", 0, 2, 1, 1))
sketch2.addConstraint(Sketcher.Constraint("Coincident", 1, 2, 2, 1))
sketch2.addConstraint(Sketcher.Constraint("Coincident", 2, 2, 3, 2))
sketch2.addConstraint(Sketcher.Constraint("Coincident", 3, 1, 4, 1))
sketch2.addConstraint(Sketcher.Constraint("Coincident", 4, 2, 5, 2))
sketch2.addConstraint(Sketcher.Constraint("Coincident", 5, 1, 6, 1))
sketch2.addConstraint(Sketcher.Constraint("Coincident", 6, 2, 0, 1))
sketch2.addConstraint(Sketcher.Constraint("Coincident", 7, 2, 8, 1))
sketch2.addConstraint(Sketcher.Constraint("Coincident", 8, 2, 9, 2))
sketch2.addConstraint(Sketcher.Constraint("Coincident", 12, 1, 13, 1))
sketch2.addConstraint(Sketcher.Constraint("Coincident", 13, 2, 14, 2))
sketch2.addConstraint(Sketcher.Constraint("Coincident", 18, 1, 19, 1))
sketch2.addConstraint(Sketcher.Constraint("Coincident", 19, 2, 7, 1))
sketch2.addConstraint(Sketcher.Constraint("Coincident", 20, 2, 21, 1))
sketch2.addConstraint(Sketcher.Constraint("Coincident", 21, 2, 22, 1))
sketch2.addConstraint(Sketcher.Constraint("Coincident", 22, 2, 23, 2))
sketch2.addConstraint(Sketcher.Constraint("Coincident", 23, 1, 24, 1))
sketch2.addConstraint(Sketcher.Constraint("Coincident", 24, 2, 25, 2))
sketch2.addConstraint(Sketcher.Constraint("Coincident", 25, 1, 26, 1))
sketch2.addConstraint(Sketcher.Constraint("Coincident", 26, 2, 20, 1))
sketch2.addConstraint(Sketcher.Constraint("Horizontal", 0))
sketch2.addConstraint(Sketcher.Constraint("Vertical", 1))
sketch2.addConstraint(Sketcher.Constraint("Horizontal", 2))
sketch2.addConstraint(Sketcher.Constraint("Vertical", 6))
sketch2.addConstraint(Sketcher.Constraint("Vertical", 7))
sketch2.addConstraint(Sketcher.Constraint("Horizontal", 8))
sketch2.addConstraint(Sketcher.Constraint("Horizontal", 19))
sketch2.addConstraint(Sketcher.Constraint("Horizontal", 20))
sketch2.addConstraint(Sketcher.Constraint("Vertical", 21))
sketch2.addConstraint(Sketcher.Constraint("Horizontal", 22))
sketch2.addConstraint(Sketcher.Constraint("Vertical", 26))
sketch2.addConstraint(Sketcher.Constraint("DistanceY", 1, 2, 1, 1, Q("0.3 mm")))
sketch2.addConstraint(Sketcher.Constraint("DistanceY", 21, 2, 21, 1, Q("0.3 mm")))
sketch2.addConstraint(Sketcher.Constraint("DistanceX", 0, 1, 0, 2, Q("0.038462 mm")))
sketch2.addConstraint(Sketcher.Constraint("DistanceX", 20, 1, 20, 2, Q("0.038462 mm")))
sketch2.addConstraint(Sketcher.Constraint("DistanceX", 8, 2, 8, 1, Q("0.146755 mm")))
pad2 = body.newObject("PartDesign::Pad", "Pad001")
pad2.Profile = sketch2
pad2.Length = 0.002
pad2.Reversed = True

doc.recompute()
